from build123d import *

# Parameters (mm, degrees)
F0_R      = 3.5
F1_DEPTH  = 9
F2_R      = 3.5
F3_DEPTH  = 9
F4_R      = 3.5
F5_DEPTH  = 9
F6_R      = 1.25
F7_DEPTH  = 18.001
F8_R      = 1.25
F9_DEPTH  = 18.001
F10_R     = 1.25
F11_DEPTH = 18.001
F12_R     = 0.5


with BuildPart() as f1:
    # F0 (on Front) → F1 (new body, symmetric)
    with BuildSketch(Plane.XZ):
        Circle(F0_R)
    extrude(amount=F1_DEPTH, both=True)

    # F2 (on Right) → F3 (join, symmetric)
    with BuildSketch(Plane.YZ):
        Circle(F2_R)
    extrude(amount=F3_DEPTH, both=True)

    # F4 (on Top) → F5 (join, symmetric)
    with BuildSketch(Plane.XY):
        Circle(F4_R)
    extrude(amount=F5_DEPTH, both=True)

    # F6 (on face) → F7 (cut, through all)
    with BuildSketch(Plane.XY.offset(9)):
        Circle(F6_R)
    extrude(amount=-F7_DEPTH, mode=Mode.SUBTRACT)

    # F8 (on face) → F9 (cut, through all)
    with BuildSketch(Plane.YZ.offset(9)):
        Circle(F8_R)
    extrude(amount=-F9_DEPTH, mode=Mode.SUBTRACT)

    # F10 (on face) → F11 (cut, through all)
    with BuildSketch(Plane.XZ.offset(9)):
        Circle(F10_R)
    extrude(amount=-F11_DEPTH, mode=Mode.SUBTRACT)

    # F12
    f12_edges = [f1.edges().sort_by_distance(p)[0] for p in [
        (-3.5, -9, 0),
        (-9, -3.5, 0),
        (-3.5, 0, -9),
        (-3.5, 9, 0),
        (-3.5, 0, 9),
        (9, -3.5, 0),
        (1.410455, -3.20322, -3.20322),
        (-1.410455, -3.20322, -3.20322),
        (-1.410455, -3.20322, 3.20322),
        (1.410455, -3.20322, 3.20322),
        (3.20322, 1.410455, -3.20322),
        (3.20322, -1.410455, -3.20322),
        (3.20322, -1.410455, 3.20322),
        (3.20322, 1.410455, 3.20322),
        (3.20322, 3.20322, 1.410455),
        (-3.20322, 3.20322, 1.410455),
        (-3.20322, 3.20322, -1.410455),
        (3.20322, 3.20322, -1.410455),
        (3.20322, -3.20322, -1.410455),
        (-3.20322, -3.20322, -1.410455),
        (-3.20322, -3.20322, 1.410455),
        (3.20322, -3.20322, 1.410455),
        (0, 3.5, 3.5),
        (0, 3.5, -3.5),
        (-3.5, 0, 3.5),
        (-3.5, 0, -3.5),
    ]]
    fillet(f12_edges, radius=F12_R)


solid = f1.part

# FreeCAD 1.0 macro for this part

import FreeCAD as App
import Part
import Sketcher

V = App.Vector


def edges_at(feature, points):
    """Names of the edges that pass closest to the given points."""
    edges = feature.Shape.Edges
    near = lambda p: min(range(len(edges)), key=lambda i: edges[i].distToShape(Part.Vertex(*p))[0])
    return sorted({f"Edge{near(p) + 1}" for p in points})

doc = App.newDocument("Part")
params = doc.addObject("Spreadsheet::Sheet", "Params")
for row, (alias, value) in enumerate([
    ("sketch1_diameter", "7 mm"),
    ("pad1_length", "18 mm"),
    ("sketch2_diameter", "7 mm"),
    ("pad2_length", "18 mm"),
    ("sketch3_diameter", "7 mm"),
    ("pad3_length", "18 mm"),
    ("sketch4_diameter", "2.5 mm"),
    ("sketch5_diameter", "2.5 mm"),
    ("sketch6_diameter", "2.5 mm"),
    ("fillet_radius", "0.5 mm"),
], start=1):
    params.set(f"A{row}", alias)
    params.set(f"B{row}", "=" + value)
    params.setAlias(f"B{row}", alias)

body = doc.addObject("PartDesign::Body", "Body")

# Sketch on XZ plane
sketch1 = body.newObject("Sketcher::SketchObject", "Sketch")
sketch1.AttachmentSupport = (doc.getObject("XZ_Plane"), [""])
sketch1.MapMode = "FlatFace"
sketch1.addGeometry(Part.Circle(V(0, 0, 0), V(0, 0, 1), 3.5), False)
sketch1.addConstraint(Sketcher.Constraint("Coincident", 0, 3, -1, 1))
sketch1.addConstraint(Sketcher.Constraint("Diameter", 0, 7.0))
sketch1.setExpression("Constraints[1]", "Params.sketch1_diameter")
pad1 = body.newObject("PartDesign::Pad", "Pad")
pad1.Profile = sketch1
pad1.setExpression("Length", "Params.pad1_length")
pad1.Midplane = True

# Sketch on YZ plane
sketch2 = body.newObject("Sketcher::SketchObject", "Sketch001")
sketch2.AttachmentSupport = (doc.getObject("YZ_Plane"), [""])
sketch2.MapMode = "FlatFace"
sketch2.addGeometry(Part.Circle(V(0, 0, 0), V(0, 0, 1), 3.5), False)
sketch2.addConstraint(Sketcher.Constraint("Coincident", 0, 3, -1, 1))
sketch2.addConstraint(Sketcher.Constraint("Diameter", 0, 7.0))
sketch2.setExpression("Constraints[1]", "Params.sketch2_diameter")
pad2 = body.newObject("PartDesign::Pad", "Pad001")
pad2.Profile = sketch2
pad2.setExpression("Length", "Params.pad2_length")
pad2.Midplane = True

# Sketch on XY plane
sketch3 = body.newObject("Sketcher::SketchObject", "Sketch002")
sketch3.AttachmentSupport = (doc.getObject("XY_Plane"), [""])
sketch3.MapMode = "FlatFace"
sketch3.addGeometry(Part.Circle(V(0, 0, 0), V(0, 0, 1), 3.5), False)
sketch3.addConstraint(Sketcher.Constraint("Coincident", 0, 3, -1, 1))
sketch3.addConstraint(Sketcher.Constraint("Diameter", 0, 7.0))
sketch3.setExpression("Constraints[1]", "Params.sketch3_diameter")
pad3 = body.newObject("PartDesign::Pad", "Pad002")
pad3.Profile = sketch3
pad3.setExpression("Length", "Params.pad3_length")
pad3.Midplane = True

# Sketch on XY plane
sketch4 = body.newObject("Sketcher::SketchObject", "Sketch003")
sketch4.AttachmentSupport = (doc.getObject("XY_Plane"), [""])
sketch4.MapMode = "FlatFace"
sketch4.AttachmentOffset = App.Placement(V(0, 0, 9), App.Rotation())
sketch4.addGeometry(Part.Circle(V(0, 0, 0), V(0, 0, 1), 1.2), False)
sketch4.addConstraint(Sketcher.Constraint("Coincident", 0, 3, -1, 1))
sketch4.addConstraint(Sketcher.Constraint("Diameter", 0, 2.5))
sketch4.setExpression("Constraints[1]", "Params.sketch4_diameter")
pocket1 = body.newObject("PartDesign::Pocket", "Pocket")
pocket1.Profile = sketch4
pocket1.Type = "ThroughAll"

# Sketch on YZ plane
sketch5 = body.newObject("Sketcher::SketchObject", "Sketch004")
sketch5.AttachmentSupport = (doc.getObject("YZ_Plane"), [""])
sketch5.MapMode = "FlatFace"
sketch5.AttachmentOffset = App.Placement(V(0, 0, 9), App.Rotation())
sketch5.addGeometry(Part.Circle(V(0, 0, 0), V(0, 0, 1), 1.2), False)
sketch5.addConstraint(Sketcher.Constraint("Coincident", 0, 3, -1, 1))
sketch5.addConstraint(Sketcher.Constraint("Diameter", 0, 2.5))
sketch5.setExpression("Constraints[1]", "Params.sketch5_diameter")
pocket2 = body.newObject("PartDesign::Pocket", "Pocket001")
pocket2.Profile = sketch5
pocket2.Type = "ThroughAll"

# Sketch on XZ plane
sketch6 = body.newObject("Sketcher::SketchObject", "Sketch005")
sketch6.AttachmentSupport = (doc.getObject("XZ_Plane"), [""])
sketch6.MapMode = "FlatFace"
sketch6.AttachmentOffset = App.Placement(V(0, 0, 9), App.Rotation())
sketch6.addGeometry(Part.Circle(V(0, 0, 0), V(0, 0, 1), 1.2), False)
sketch6.addConstraint(Sketcher.Constraint("Coincident", 0, 3, -1, 1))
sketch6.addConstraint(Sketcher.Constraint("Diameter", 0, 2.5))
sketch6.setExpression("Constraints[1]", "Params.sketch6_diameter")
pocket3 = body.newObject("PartDesign::Pocket", "Pocket002")
pocket3.Profile = sketch6
pocket3.Type = "ThroughAll"
doc.recompute()

fillet = body.newObject("PartDesign::Fillet", "Fillet")
fillet.Base = (pocket3, edges_at(pocket3, [
    (-3.5, -9, 0),
    (-9, -3.5, 0),
    (-3.5, 0, -9),
    (-3.5, 9, 0),
    (-3.5, 0, 9),
    (9, -3.5, 0),
    (1.41, -3.203, -3.203),
    (-1.41, -3.203, -3.203),
    (-1.41, -3.203, 3.203),
    (1.41, -3.203, 3.203),
    (3.203, 1.41, -3.203),
    (3.203, -1.41, -3.203),
    (3.203, -1.41, 3.203),
    (3.203, 1.41, 3.203),
    (3.203, 3.203, 1.41),
    (-3.203, 3.203, 1.41),
    (-3.203, 3.203, -1.41),
    (3.203, 3.203, -1.41),
    (3.203, -3.203, -1.41),
    (-3.203, -3.203, -1.41),
    (-3.203, -3.203, 1.41),
    (3.203, -3.203, 1.41),
    (0, 3.5, 3.5),
    (0, 3.5, -3.5),
    (-3.5, 0, 3.5),
    (-3.5, 0, -3.5),
]))
fillet.setExpression("Radius", "Params.fillet_radius")

doc.recompute()
